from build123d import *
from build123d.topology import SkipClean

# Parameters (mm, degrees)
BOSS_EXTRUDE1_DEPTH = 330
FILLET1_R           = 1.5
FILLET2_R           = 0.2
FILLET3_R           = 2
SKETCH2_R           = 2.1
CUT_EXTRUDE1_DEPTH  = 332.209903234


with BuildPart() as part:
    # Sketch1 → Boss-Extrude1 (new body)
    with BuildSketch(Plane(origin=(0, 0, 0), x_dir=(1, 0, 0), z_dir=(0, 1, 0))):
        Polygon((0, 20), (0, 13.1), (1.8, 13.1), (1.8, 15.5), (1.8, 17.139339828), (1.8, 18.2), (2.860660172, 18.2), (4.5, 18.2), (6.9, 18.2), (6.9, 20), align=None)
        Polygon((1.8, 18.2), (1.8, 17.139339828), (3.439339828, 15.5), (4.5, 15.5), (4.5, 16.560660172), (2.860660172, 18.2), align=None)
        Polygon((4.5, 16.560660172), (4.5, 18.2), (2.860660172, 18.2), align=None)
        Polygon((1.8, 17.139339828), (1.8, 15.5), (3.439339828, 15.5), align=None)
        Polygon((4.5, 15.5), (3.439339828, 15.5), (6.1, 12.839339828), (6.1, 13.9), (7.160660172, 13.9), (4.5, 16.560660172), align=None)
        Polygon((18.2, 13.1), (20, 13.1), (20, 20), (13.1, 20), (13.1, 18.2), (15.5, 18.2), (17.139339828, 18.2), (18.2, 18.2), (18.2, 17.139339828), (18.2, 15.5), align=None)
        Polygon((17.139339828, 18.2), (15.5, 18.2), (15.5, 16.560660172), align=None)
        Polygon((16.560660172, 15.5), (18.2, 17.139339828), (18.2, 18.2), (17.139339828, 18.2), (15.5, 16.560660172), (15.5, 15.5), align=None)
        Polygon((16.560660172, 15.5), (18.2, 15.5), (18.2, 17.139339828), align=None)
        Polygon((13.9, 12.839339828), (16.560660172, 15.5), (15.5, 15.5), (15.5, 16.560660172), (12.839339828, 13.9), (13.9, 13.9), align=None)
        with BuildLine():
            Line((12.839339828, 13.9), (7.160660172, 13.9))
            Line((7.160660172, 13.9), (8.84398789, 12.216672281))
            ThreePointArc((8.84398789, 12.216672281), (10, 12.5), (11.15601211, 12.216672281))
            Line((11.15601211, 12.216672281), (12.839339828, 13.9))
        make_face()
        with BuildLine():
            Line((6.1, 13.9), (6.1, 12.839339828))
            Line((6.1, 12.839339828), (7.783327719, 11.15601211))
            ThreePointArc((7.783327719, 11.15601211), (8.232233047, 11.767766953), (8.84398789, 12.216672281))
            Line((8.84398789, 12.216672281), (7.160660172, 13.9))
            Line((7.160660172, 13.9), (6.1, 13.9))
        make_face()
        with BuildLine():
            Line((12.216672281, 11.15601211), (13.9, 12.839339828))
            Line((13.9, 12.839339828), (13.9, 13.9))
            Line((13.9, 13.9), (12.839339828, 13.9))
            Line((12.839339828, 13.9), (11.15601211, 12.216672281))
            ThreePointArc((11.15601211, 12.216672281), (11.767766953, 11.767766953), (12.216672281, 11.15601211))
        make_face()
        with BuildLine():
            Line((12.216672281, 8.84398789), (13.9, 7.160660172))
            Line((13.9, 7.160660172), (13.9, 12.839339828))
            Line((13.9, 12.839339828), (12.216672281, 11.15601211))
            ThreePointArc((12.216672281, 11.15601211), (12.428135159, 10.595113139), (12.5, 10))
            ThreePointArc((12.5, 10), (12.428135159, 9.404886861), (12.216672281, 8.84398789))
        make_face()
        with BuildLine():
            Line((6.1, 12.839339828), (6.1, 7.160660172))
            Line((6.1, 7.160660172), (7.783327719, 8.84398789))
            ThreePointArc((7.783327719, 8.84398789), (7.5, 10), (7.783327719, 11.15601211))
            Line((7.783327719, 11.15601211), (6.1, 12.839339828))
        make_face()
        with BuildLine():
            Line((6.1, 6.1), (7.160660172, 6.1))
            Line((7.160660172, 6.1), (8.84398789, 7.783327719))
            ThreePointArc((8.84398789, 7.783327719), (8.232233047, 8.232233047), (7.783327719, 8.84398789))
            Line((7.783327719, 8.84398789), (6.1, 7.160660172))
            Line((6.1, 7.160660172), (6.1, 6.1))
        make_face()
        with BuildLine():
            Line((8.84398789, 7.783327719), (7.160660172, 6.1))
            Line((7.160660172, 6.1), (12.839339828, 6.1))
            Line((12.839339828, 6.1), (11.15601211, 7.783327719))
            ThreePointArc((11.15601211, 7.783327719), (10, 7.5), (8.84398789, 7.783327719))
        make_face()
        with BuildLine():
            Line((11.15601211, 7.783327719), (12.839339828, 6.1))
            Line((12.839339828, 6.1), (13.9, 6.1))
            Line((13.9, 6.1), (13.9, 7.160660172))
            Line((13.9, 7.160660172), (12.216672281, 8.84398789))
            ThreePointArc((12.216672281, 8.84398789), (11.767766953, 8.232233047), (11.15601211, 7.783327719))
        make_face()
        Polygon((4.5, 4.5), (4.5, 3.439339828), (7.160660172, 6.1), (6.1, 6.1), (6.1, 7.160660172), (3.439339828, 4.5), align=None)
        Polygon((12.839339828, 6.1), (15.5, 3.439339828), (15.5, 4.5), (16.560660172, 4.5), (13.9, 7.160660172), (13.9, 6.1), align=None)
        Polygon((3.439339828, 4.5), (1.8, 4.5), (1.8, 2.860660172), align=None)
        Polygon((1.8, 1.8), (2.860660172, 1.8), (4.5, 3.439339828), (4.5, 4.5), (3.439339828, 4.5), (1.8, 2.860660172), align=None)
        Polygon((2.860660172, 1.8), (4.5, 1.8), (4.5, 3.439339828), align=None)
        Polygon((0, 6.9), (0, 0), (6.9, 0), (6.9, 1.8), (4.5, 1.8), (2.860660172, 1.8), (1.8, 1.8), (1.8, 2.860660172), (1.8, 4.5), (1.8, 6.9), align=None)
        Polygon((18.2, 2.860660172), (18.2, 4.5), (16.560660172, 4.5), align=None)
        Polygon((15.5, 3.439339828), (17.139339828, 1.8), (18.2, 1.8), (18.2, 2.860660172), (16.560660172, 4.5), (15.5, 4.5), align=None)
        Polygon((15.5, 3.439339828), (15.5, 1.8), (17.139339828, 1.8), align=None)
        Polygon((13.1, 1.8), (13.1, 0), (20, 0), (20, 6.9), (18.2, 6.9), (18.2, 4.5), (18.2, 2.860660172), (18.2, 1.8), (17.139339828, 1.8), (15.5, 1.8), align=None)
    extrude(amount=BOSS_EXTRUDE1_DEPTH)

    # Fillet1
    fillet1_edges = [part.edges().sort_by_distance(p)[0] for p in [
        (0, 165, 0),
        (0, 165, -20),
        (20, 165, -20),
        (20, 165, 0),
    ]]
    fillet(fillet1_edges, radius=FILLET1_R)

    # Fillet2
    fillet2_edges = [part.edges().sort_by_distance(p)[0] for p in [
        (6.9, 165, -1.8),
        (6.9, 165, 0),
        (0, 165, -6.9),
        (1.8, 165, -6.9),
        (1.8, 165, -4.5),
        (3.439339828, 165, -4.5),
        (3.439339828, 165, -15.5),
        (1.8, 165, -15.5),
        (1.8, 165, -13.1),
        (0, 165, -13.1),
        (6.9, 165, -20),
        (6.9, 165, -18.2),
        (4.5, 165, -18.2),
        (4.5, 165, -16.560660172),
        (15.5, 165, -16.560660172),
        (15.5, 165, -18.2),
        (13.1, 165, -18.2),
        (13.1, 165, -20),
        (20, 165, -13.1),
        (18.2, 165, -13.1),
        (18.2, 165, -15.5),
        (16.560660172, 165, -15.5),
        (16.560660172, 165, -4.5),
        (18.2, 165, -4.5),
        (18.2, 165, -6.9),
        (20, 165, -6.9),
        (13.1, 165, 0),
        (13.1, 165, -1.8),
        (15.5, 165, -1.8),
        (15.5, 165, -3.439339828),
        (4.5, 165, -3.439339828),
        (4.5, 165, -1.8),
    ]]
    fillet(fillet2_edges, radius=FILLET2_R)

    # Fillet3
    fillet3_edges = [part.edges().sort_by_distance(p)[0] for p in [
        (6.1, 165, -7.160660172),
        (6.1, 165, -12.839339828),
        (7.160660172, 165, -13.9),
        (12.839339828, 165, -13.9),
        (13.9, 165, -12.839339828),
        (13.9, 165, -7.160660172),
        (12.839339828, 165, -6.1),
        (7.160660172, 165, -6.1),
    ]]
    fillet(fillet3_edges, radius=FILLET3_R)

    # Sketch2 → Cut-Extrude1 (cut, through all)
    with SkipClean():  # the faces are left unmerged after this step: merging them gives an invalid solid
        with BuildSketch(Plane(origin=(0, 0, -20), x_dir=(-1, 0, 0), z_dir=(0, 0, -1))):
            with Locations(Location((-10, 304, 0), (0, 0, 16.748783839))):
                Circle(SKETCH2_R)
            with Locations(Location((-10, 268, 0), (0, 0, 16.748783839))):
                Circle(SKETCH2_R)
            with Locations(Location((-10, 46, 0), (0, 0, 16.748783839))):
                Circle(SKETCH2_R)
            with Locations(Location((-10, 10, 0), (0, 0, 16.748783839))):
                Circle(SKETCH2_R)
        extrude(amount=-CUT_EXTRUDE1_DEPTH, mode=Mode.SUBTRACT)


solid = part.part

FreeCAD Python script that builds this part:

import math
import FreeCAD as App
import Part
import Sketcher


def edges_at(feature, points):
    """Names of the edges that pass closest to the given points."""
    edges = feature.Shape.Edges
    near = lambda p: min(range(len(edges)), key=lambda i: edges[i].distToShape(Part.Vertex(*p))[0])
    return sorted({f"Edge{near(p) + 1}" for p in points})


def add_polygon(sketch, points):
    """Adds a closed chain of lines whose ends are joined by coincident constraints."""
    first, n = sketch.GeometryCount, len(points)
    for a, b in zip(points, points[1:] + points[:1]):
        sketch.addGeometry(Part.LineSegment(App.Vector(*a, 0), App.Vector(*b, 0)), False)
    for i in range(n):
        sketch.addConstraint(Sketcher.Constraint("Coincident", first + i, 2, first + (i + 1) % n, 1))

doc = App.newDocument("Part")
body = doc.addObject("PartDesign::Body", "Body")

sketch1 = doc.addObject("Sketcher::SketchObject", "Sketch")
body.addObject(sketch1)
sketch1.AttachmentSupport = (doc.XZ_Plane, [""])
sketch1.MapMode = "FlatFace"
add_polygon(sketch1, [(0, -20), (0, -13.1), (1.8, -13.1), (1.8, -15.5), (3.4, -15.5), (6.1, -12.8), (6.1, -7.2), (3.4, -4.5), (1.8, -4.5), (1.8, -6.9), (0, -6.9), (0, 0), (6.9, 0), (6.9, -1.8), (4.5, -1.8), (4.5, -3.4), (7.2, -6.1), (12.8, -6.1), (15.5, -3.4), (15.5, -1.8), (13.1, -1.8), (13.1, 0), (20, 0), (20, -6.9), (18.2, -6.9), (18.2, -4.5), (16.6, -4.5), (13.9, -7.2), (13.9, -12.8), (16.6, -15.5), (18.2, -15.5), (18.2, -13.1), (20, -13.1), (20, -20), (13.1, -20), (13.1, -18.2), (15.5, -18.2), (15.5, -16.6), (12.8, -13.9), (7.2, -13.9), (4.5, -16.6), (4.5, -18.2), (6.9, -18.2), (6.9, -20)])
sketch1.addGeometry(Part.ArcOfCircle(Part.Circle(App.Vector(10, -10, 0), App.Vector(0, 0, 1), 2.5), math.radians(62), math.radians(118)), False)
sketch1.addGeometry(Part.ArcOfCircle(Part.Circle(App.Vector(10, -10, 0), App.Vector(0, 0, 1), 2.5), math.radians(118), math.radians(152)), False)
sketch1.addGeometry(Part.ArcOfCircle(Part.Circle(App.Vector(10, -10, 0), App.Vector(0, 0, 1), 2.5), math.radians(152), math.radians(208)), False)
sketch1.addGeometry(Part.ArcOfCircle(Part.Circle(App.Vector(10, -10, 0), App.Vector(0, 0, 1), 2.5), math.radians(-152), math.radians(-118)), False)
sketch1.addGeometry(Part.ArcOfCircle(Part.Circle(App.Vector(10, -10, 0), App.Vector(0, 0, 1), 2.5), math.radians(-118), math.radians(-62)), False)
sketch1.addGeometry(Part.ArcOfCircle(Part.Circle(App.Vector(10, -10, 0), App.Vector(0, 0, 1), 2.5), math.radians(-62), math.radians(-28)), False)
sketch1.addGeometry(Part.ArcOfCircle(Part.Circle(App.Vector(10, -10, 0), App.Vector(0, 0, 1), 2.5), math.radians(-28), math.radians(0)), False)
sketch1.addGeometry(Part.ArcOfCircle(Part.Circle(App.Vector(10, -10, 0), App.Vector(0, 0, 1), 2.5), math.radians(0), math.radians(28)), False)
sketch1.addGeometry(Part.ArcOfCircle(Part.Circle(App.Vector(10, -10, 0), App.Vector(0, 0, 1), 2.5), math.radians(28), math.radians(62)), False)
sketch1.addConstraint(Sketcher.Constraint("Tangent", 44, 2, 45, 1))
sketch1.addConstraint(Sketcher.Constraint("Tangent", 45, 2, 46, 1))
sketch1.addConstraint(Sketcher.Constraint("Tangent", 46, 2, 47, 1))
sketch1.addConstraint(Sketcher.Constraint("Tangent", 47, 2, 48, 1))
sketch1.addConstraint(Sketcher.Constraint("Tangent", 48, 2, 49, 1))
sketch1.addConstraint(Sketcher.Constraint("Tangent", 49, 2, 50, 1))
sketch1.addConstraint(Sketcher.Constraint("Tangent", 50, 2, 51, 1))
sketch1.addConstraint(Sketcher.Constraint("Tangent", 51, 2, 52, 1))
sketch1.addConstraint(Sketcher.Constraint("Tangent", 52, 2, 44, 1))
sketch1.addConstraint(Sketcher.Constraint("Vertical", 0))
sketch1.addConstraint(Sketcher.Constraint("Horizontal", 1))
sketch1.addConstraint(Sketcher.Constraint("Vertical", 2))
sketch1.addConstraint(Sketcher.Constraint("Horizontal", 3))
sketch1.addConstraint(Sketcher.Constraint("Vertical", 5))
sketch1.addConstraint(Sketcher.Constraint("Horizontal", 7))
sketch1.addConstraint(Sketcher.Constraint("Vertical", 8))
sketch1.addConstraint(Sketcher.Constraint("Horizontal", 9))
sketch1.addConstraint(Sketcher.Constraint("Vertical", 10))
sketch1.addConstraint(Sketcher.Constraint("Horizontal", 11))
sketch1.addConstraint(Sketcher.Constraint("Vertical", 12))
sketch1.addConstraint(Sketcher.Constraint("Horizontal", 13))
sketch1.addConstraint(Sketcher.Constraint("Vertical", 14))
sketch1.addConstraint(Sketcher.Constraint("Horizontal", 16))
sketch1.addConstraint(Sketcher.Constraint("Vertical", 18))
sketch1.addConstraint(Sketcher.Constraint("Horizontal", 19))
sketch1.addConstraint(Sketcher.Constraint("Vertical", 20))
sketch1.addConstraint(Sketcher.Constraint("Horizontal", 21))
sketch1.addConstraint(Sketcher.Constraint("Vertical", 22))
sketch1.addConstraint(Sketcher.Constraint("Horizontal", 23))
sketch1.addConstraint(Sketcher.Constraint("Vertical", 24))
sketch1.addConstraint(Sketcher.Constraint("Horizontal", 25))
sketch1.addConstraint(Sketcher.Constraint("Vertical", 27))
sketch1.addConstraint(Sketcher.Constraint("Horizontal", 29))
sketch1.addConstraint(Sketcher.Constraint("Vertical", 30))
sketch1.addConstraint(Sketcher.Constraint("Horizontal", 31))
sketch1.addConstraint(Sketcher.Constraint("Vertical", 32))
sketch1.addConstraint(Sketcher.Constraint("Horizontal", 33))
sketch1.addConstraint(Sketcher.Constraint("Vertical", 34))
sketch1.addConstraint(Sketcher.Constraint("Horizontal", 35))
sketch1.addConstraint(Sketcher.Constraint("Vertical", 36))
sketch1.addConstraint(Sketcher.Constraint("Horizontal", 38))
sketch1.addConstraint(Sketcher.Constraint("Vertical", 40))
sketch1.addConstraint(Sketcher.Constraint("Horizontal", 41))
sketch1.addConstraint(Sketcher.Constraint("Vertical", 42))
sketch1.addConstraint(Sketcher.Constraint("Horizontal", 43))
sketch1.addConstraint(Sketcher.Constraint("Coincident", 10, 2, -1, 1))
sketch1.addConstraint(Sketcher.Constraint("Coincident", 46, 3, 44, 3))
sketch1.addConstraint(Sketcher.Constraint("Coincident", 48, 3, 44, 3))
sketch1.addConstraint(Sketcher.Constraint("Coincident", 50, 3, 44, 3))
sketch1.addConstraint(Sketcher.Constraint("PointOnObject", 0, 2, -2))
sketch1.addConstraint(Sketcher.Constraint("PointOnObject", 20, 2, -1))
sketch1.addConstraint(Sketcher.Constraint("Perpendicular", 4, 6))
sketch1.addConstraint(Sketcher.Constraint("Parallel", 6, 15))
sketch1.addConstraint(Sketcher.Constraint("Perpendicular", 15, 17))
sketch1.addConstraint(Sketcher.Constraint("Parallel", 17, 26))
sketch1.addConstraint(Sketcher.Constraint("Perpendicular", 26, 28))
sketch1.addConstraint(Sketcher.Constraint("Parallel", 28, 37))
sketch1.addConstraint(Sketcher.Constraint("Perpendicular", 37, 39))
sketch1.addConstraint(Sketcher.Constraint("Horizontal", 14, 2, 17, 2))
sketch1.addConstraint(Sketcher.Constraint("Horizontal", 13, 2, 18, 2))
sketch1.addConstraint(Sketcher.Constraint("Horizontal", 9, 2, 22, 2))
sketch1.addConstraint(Sketcher.Constraint("Horizontal", 7, 2, 24, 2))
sketch1.addConstraint(Sketcher.Constraint("Horizontal", 5, 2, 26, 2))
sketch1.addConstraint(Sketcher.Constraint("Horizontal", 4, 2, 27, 2))
sketch1.addConstraint(Sketcher.Constraint("Horizontal", 3, 2, 28, 2))
sketch1.addConstraint(Sketcher.Constraint("Horizontal", 1, 2, 30, 2))
sketch1.addConstraint(Sketcher.Constraint("Horizontal", 36, 2, 39, 2))
sketch1.addConstraint(Sketcher.Constraint("Horizontal", 35, 2, 40, 2))
sketch1.addConstraint(Sketcher.Constraint("Horizontal", 33, 2, 42, 2))
sketch1.addConstraint(Sketcher.Constraint("Horizontal", 47, 2, 48, 2))
sketch1.addConstraint(Sketcher.Constraint("Horizontal", 46, 2, 49, 2))
sketch1.addConstraint(Sketcher.Constraint("Horizontal", 52, 3, 50, 2))
sketch1.addConstraint(Sketcher.Constraint("Horizontal", 45, 2, 51, 2))
sketch1.addConstraint(Sketcher.Constraint("Horizontal", 44, 2, 52, 2))
sketch1.addConstraint(Sketcher.Constraint("Vertical", 3, 2, 6, 2))
sketch1.addConstraint(Sketcher.Constraint("Vertical", 2, 2, 7, 2))
sketch1.addConstraint(Sketcher.Constraint("Vertical", 25, 2, 28, 2))
sketch1.addConstraint(Sketcher.Constraint("Vertical", 24, 2, 29, 2))
sketch1.addConstraint(Sketcher.Constraint("Vertical", 22, 2, 31, 2))
sketch1.addConstraint(Sketcher.Constraint("Vertical", 20, 2, 33, 2))
sketch1.addConstraint(Sketcher.Constraint("Vertical", 18, 2, 35, 2))
sketch1.addConstraint(Sketcher.Constraint("Vertical", 16, 2, 37, 2))
sketch1.addConstraint(Sketcher.Constraint("Vertical", 15, 2, 38, 2))
sketch1.addConstraint(Sketcher.Constraint("Vertical", 12, 2, 41, 2))
sketch1.addConstraint(Sketcher.Constraint("Vertical", 45, 2, 46, 2))
sketch1.addConstraint(Sketcher.Constraint("Vertical", 44, 2, 47, 2))
sketch1.addConstraint(Sketcher.Constraint("Equal", 13, 19))
sketch1.addConstraint(Sketcher.Constraint("Equal", 11, 21))
sketch1.addConstraint(Sketcher.Constraint("Equal", 9, 23))
sketch1.addConstraint(Sketcher.Constraint("Equal", 7, 25))
sketch1.addConstraint(Sketcher.Constraint("Equal", 43, 0))
sketch1.addConstraint(Sketcher.Constraint("Equal", 41, 2))
sketch1.addConstraint(Sketcher.Constraint("Equal", 38, 5))
sketch1.addConstraint(Sketcher.Constraint("Equal", 2, 8))
sketch1.addConstraint(Sketcher.Constraint("Equal", 0, 10))
sketch1.addConstraint(Sketcher.Constraint("Equal", 31, 12))
sketch1.addConstraint(Sketcher.Constraint("Equal", 29, 14))
sketch1.addConstraint(Sketcher.Constraint("Equal", 20, 34))
sketch1.addConstraint(Sketcher.Constraint("Equal", 18, 36))
sketch1.addConstraint(Sketcher.Constraint("Equal", 6, 15))
sketch1.addConstraint(Sketcher.Constraint("Radius", 44, 2.5))
sketch1.addConstraint(Sketcher.Constraint("DistanceX", 1, 1, 1, 2, 1.8))
sketch1.addConstraint(Sketcher.Constraint("DistanceX", 11, 1, 11, 2, 6.9))
sketch1.addConstraint(Sketcher.Constraint("DistanceX", 13, 2, 13, 1, 2.4))
sketch1.addConstraint(Sketcher.Constraint("DistanceX", -1, 1, 44, 3, 10.0))
sketch1.addConstraint(Sketcher.Constraint("DistanceY", 44, 3, -1, 1, 10.0))
sketch1.addConstraint(Sketcher.Constraint("DistanceX", -1, 1, 21, 2, 20.0))
sketch1.addConstraint(Sketcher.Constraint("DistanceX", -1, 1, 4, 2, 6.1))
sketch1.addConstraint(Sketcher.Constraint("DistanceX", 3, 1, 3, 2, 1.63934))
sketch1.addConstraint(Sketcher.Constraint("DistanceX", -1, 1, 44, 2, 8.843988))
sketch1.addConstraint(Sketcher.Constraint("DistanceX", -1, 1, 45, 2, 7.783328))
pad1 = doc.addObject("PartDesign::Pad", "Pad")
body.addObject(pad1)
pad1.Profile = sketch1
pad1.Length = 330
pad1.Reversed = True
doc.recompute()

fillet = doc.addObject("PartDesign::Fillet", "Fillet")
body.addObject(fillet)
fillet.Base = (pad1, edges_at(pad1, [
    (0, 165, 0),
    (0, 165, -20),
    (20, 165, -20),
    (20, 165, 0),
]))
fillet.Radius = 1.5
doc.recompute()

fillet2 = doc.addObject("PartDesign::Fillet", "Fillet001")
body.addObject(fillet2)
fillet2.Base = (fillet, edges_at(fillet, [
    (6.9, 165, -1.8),
    (6.9, 165, 0),
    (0, 165, -6.9),
    (1.8, 165, -6.9),
    (1.8, 165, -4.5),
    (3.439, 165, -4.5),
    (3.439, 165, -15.5),
    (1.8, 165, -15.5),
    (1.8, 165, -13.1),
    (0, 165, -13.1),
    (6.9, 165, -20),
    (6.9, 165, -18.2),
    (4.5, 165, -18.2),
    (4.5, 165, -16.561),
    (15.5, 165, -16.561),
    (15.5, 165, -18.2),
    (13.1, 165, -18.2),
    (13.1, 165, -20),
    (20, 165, -13.1),
    (18.2, 165, -13.1),
    (18.2, 165, -15.5),
    (16.561, 165, -15.5),
    (16.561, 165, -4.5),
    (18.2, 165, -4.5),
    (18.2, 165, -6.9),
    (20, 165, -6.9),
    (13.1, 165, 0),
    (13.1, 165, -1.8),
    (15.5, 165, -1.8),
    (15.5, 165, -3.439),
    (4.5, 165, -3.439),
    (4.5, 165, -1.8),
]))
fillet2.Radius = 0.2
doc.recompute()

fillet3 = doc.addObject("PartDesign::Fillet", "Fillet002")
body.addObject(fillet3)
fillet3.Base = (fillet2, edges_at(fillet2, [
    (6.1, 165, -7.161),
    (6.1, 165, -12.839),
    (7.161, 165, -13.9),
    (12.839, 165, -13.9),
    (13.9, 165, -12.839),
    (13.9, 165, -7.161),
    (12.839, 165, -6.1),
    (7.161, 165, -6.1),
]))
fillet3.Radius = 2

sketch2 = doc.addObject("Sketcher::SketchObject", "Sketch001")
body.addObject(sketch2)
sketch2.AttachmentSupport = (doc.XY_Plane, [""])
sketch2.MapMode = "FlatFace"
sketch2.AttachmentOffset = App.Placement(App.Vector(0, 0, -20), App.Rotation())
sketch2.addGeometry(Part.Circle(App.Vector(10, 304, 0), App.Vector(0, 0, 1), 2.1), False)
sketch2.addGeometry(Part.Circle(App.Vector(10, 268, 0), App.Vector(0, 0, 1), 2.1), False)
sketch2.addGeometry(Part.Circle(App.Vector(10, 46, 0), App.Vector(0, 0, 1), 2.1), False)
sketch2.addGeometry(Part.Circle(App.Vector(10, 10, 0), App.Vector(0, 0, 1), 2.1), False)
sketch2.addConstraint(Sketcher.Constraint("Equal", 0, 1))
sketch2.addConstraint(Sketcher.Constraint("Equal", 1, 2))
sketch2.addConstraint(Sketcher.Constraint("Equal", 2, 3))
sketch2.addConstraint(Sketcher.Constraint("Vertical", 0, 3, 1, 3))
sketch2.addConstraint(Sketcher.Constraint("Vertical", 1, 3, 2, 3))
sketch2.addConstraint(Sketcher.Constraint("Vertical", 2, 3, 3, 3))
sketch2.addConstraint(Sketcher.Constraint("Diameter", 0, 4.2))
sketch2.addConstraint(Sketcher.Constraint("DistanceX", -1, 1, 0, 3, 10.0))
sketch2.addConstraint(Sketcher.Constraint("DistanceY", -1, 1, 0, 3, 304.0))
sketch2.addConstraint(Sketcher.Constraint("DistanceY", -1, 1, 1, 3, 268.0))
sketch2.addConstraint(Sketcher.Constraint("DistanceY", -1, 1, 2, 3, 46.0))
sketch2.addConstraint(Sketcher.Constraint("DistanceY", -1, 1, 3, 3, 10.0))
pocket1 = doc.addObject("PartDesign::Pocket", "Pocket")
body.addObject(pocket1)
pocket1.Profile = sketch2
pocket1.Type = "ThroughAll"
pocket1.Reversed = True

doc.recompute()
